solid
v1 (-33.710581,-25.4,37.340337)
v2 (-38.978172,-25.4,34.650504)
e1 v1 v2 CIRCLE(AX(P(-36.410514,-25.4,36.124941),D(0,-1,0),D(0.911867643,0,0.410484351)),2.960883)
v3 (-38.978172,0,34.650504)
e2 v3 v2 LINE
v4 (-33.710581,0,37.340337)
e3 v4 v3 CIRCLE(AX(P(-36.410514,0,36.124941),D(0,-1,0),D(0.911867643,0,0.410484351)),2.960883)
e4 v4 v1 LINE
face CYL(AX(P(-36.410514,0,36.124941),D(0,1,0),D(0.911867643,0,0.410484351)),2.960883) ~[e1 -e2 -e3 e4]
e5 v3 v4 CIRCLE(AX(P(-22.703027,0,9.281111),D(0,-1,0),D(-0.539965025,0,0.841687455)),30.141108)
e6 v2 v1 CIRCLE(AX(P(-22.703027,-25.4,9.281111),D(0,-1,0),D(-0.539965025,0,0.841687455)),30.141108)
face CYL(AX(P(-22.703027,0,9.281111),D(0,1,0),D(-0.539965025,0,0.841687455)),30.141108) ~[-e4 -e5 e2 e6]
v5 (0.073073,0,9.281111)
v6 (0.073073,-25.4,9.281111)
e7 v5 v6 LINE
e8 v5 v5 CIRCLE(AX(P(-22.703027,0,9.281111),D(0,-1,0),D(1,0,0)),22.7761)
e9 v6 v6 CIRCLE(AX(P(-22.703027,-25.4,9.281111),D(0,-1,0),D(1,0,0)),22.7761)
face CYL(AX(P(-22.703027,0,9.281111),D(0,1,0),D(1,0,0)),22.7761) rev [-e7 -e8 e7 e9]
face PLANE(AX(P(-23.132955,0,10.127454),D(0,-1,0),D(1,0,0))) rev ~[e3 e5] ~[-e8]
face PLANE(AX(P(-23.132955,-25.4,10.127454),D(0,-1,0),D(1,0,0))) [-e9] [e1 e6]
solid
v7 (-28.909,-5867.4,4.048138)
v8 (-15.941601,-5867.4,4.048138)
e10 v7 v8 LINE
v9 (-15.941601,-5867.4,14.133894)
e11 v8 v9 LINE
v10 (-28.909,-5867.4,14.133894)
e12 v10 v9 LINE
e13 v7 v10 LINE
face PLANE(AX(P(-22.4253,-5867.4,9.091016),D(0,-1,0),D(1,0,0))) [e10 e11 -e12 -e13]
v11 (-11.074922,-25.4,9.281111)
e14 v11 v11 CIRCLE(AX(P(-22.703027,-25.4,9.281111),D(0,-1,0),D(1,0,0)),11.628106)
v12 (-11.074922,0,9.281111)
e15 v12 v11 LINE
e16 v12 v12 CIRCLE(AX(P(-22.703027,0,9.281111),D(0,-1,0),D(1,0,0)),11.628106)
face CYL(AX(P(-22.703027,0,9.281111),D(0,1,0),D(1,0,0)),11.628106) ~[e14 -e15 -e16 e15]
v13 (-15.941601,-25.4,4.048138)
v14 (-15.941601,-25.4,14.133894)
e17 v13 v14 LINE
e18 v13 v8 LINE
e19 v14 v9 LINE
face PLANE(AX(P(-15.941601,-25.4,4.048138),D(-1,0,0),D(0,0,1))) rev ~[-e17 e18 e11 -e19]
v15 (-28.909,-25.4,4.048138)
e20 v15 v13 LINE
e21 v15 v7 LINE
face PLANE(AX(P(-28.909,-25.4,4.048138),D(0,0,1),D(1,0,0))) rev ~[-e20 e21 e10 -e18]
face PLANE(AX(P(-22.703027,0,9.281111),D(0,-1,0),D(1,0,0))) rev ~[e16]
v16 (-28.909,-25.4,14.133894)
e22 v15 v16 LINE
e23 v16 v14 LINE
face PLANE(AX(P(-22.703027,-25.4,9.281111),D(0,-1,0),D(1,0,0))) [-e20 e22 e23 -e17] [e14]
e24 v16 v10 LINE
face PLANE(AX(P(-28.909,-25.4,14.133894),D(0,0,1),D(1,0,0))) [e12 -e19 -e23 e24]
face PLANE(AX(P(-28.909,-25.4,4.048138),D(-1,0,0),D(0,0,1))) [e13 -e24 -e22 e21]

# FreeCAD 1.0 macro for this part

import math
import FreeCAD as App
import Part
import Sketcher
Q = App.Units.Quantity

doc = App.newDocument("Part")
body = doc.addObject("PartDesign::Body", "Body")

# Sketch on XZ plane
sketch1 = doc.addObject("Sketcher::SketchObject", "Sketch")
body.addObject(sketch1)
sketch1.AttachmentSupport = (doc.XZ_Plane, [""])
sketch1.MapMode = "FlatFace"
sketch1.addGeometry([
    Part.ArcOfCircle(Part.Circle(App.Vector(-22.703027, 9.281111, 0), App.Vector(0, 0, 1), 30.141108), math.radians(122.681258), math.radians(471.419933)),
    Part.ArcOfCircle(Part.Circle(App.Vector(-36.410514, 36.124941, 0), App.Vector(0, 0, 1), 2.960883), math.radians(24.235265), math.radians(209.865927)),
    Part.Circle(App.Vector(-22.703027, 9.281111, 0), App.Vector(0, 0, 1), 22.7761),
], False)
sketch1.addConstraint([
    Sketcher.Constraint("Coincident", 0, 1, 1, 2),
    Sketcher.Constraint("Coincident", 1, 1, 0, 2),
    Sketcher.Constraint("Coincident", 2, 3, 0, 3),
    Sketcher.Constraint("Diameter", 2, 45.5522),
    Sketcher.Constraint("Radius", 0, 30.141108),
    Sketcher.Constraint("Radius", 1, 2.960883),
    Sketcher.Constraint("DistanceY", -1, 1, 0, 3, 9.281111),
    Sketcher.Constraint("DistanceY", -1, 1, 1, 3, 36.124941),
    Sketcher.Constraint("DistanceX", 0, 1, -1, 1, 38.978172),
    Sketcher.Constraint("DistanceX", 1, 1, -1, 1, 33.710581),
])
pad1 = doc.addObject("PartDesign::Pad", "Pad")
body.addObject(pad1)
pad1.Profile = sketch1
pad1.Length = Q("1 in")
body2 = doc.addObject("PartDesign::Body", "Body001")

# Sketch on XZ plane
sketch2 = doc.addObject("Sketcher::SketchObject", "Sketch001")
body2.addObject(sketch2)
sketch2.AttachmentSupport = (doc.getObject("XZ_Plane001"), [""])
sketch2.MapMode = "FlatFace"
sketch2.addGeometry(Part.Circle(App.Vector(-22.703027, 9.281111, 0), App.Vector(0, 0, 1), 11.628106), False)
sketch2.addConstraint([
    Sketcher.Constraint("Diameter", 0, 23.256211),
    Sketcher.Constraint("DistanceY", -1, 1, 0, 3, 9.281111),
    Sketcher.Constraint("DistanceX", 0, 3, -1, 1, 22.703027),
])
pad2 = doc.addObject("PartDesign::Pad", "Pad001")
body2.addObject(pad2)
pad2.Profile = sketch2
pad2.Length = Q("1 in")

# Sketch on XZ plane
sketch3 = doc.addObject("Sketcher::SketchObject", "Sketch002")
body2.addObject(sketch3)
sketch3.AttachmentSupport = (doc.getObject("XZ_Plane001"), [""])
sketch3.MapMode = "FlatFace"
sketch3.AttachmentOffset = App.Placement(App.Vector(0, 0, 1 * 25.4), App.Rotation())
sketch3.addGeometry([
    Part.LineSegment(App.Vector(-28.909, 14.133894, 0), App.Vector(-28.909, 4.048138, 0)),
    Part.LineSegment(App.Vector(-28.909, 4.048138, 0), App.Vector(-15.941601, 4.048138, 0)),
    Part.LineSegment(App.Vector(-15.941601, 4.048138, 0), App.Vector(-15.941601, 14.133894, 0)),
    Part.LineSegment(App.Vector(-15.941601, 14.133894, 0), App.Vector(-28.909, 14.133894, 0)),
], False)
sketch3.addConstraint([
    Sketcher.Constraint("Coincident", 0, 2, 1, 1),
    Sketcher.Constraint("Coincident", 1, 2, 2, 1),
    Sketcher.Constraint("Coincident", 2, 2, 3, 1),
    Sketcher.Constraint("Coincident", 3, 2, 0, 1),
    Sketcher.Constraint("Vertical", 0),
    Sketcher.Constraint("Horizontal", 1),
    Sketcher.Constraint("Vertical", 2),
    Sketcher.Constraint("Horizontal", 3),
    Sketcher.Constraint("DistanceX", 1, 1, 1, 2, 12.967398),
    Sketcher.Constraint("DistanceX", 0, 2, -1, 1, 28.909),
    Sketcher.Constraint("DistanceY", 0, 2, 0, 1, 10.085756),
    Sketcher.Constraint("DistanceY", -1, 1, 0, 2, 4.048138),
])
pad3 = doc.addObject("PartDesign::Pad", "Pad002")
body2.addObject(pad3)
pad3.Profile = sketch3
pad3.Length = Q("230 in")

doc.recompute()
